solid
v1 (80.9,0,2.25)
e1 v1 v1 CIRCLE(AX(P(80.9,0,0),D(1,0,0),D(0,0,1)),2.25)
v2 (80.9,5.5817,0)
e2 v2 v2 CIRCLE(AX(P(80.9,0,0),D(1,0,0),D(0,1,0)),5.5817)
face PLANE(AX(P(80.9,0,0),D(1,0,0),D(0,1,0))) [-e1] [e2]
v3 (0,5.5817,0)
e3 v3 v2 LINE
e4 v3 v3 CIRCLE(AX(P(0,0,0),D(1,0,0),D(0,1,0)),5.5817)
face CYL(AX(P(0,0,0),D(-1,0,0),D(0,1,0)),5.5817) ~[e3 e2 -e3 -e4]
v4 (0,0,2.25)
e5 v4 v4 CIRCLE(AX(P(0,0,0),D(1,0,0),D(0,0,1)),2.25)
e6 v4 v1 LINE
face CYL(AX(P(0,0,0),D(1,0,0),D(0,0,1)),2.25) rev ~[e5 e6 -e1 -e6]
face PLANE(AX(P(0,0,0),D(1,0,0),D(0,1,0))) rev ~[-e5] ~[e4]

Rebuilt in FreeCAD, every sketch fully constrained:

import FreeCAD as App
import Part
import Sketcher

doc = App.newDocument("Part")
body = doc.addObject("PartDesign::Body", "Body")

# Sketch on YZ plane
sketch1 = body.newObject("Sketcher::SketchObject", "Sketch")
sketch1.AttachmentSupport = (doc.getObject("YZ_Plane"), [""])
sketch1.MapMode = "FlatFace"
sketch1.addGeometry(Part.Circle(App.Vector(0, 0, 0), App.Vector(0, 0, 1), 5.5817), False)
sketch1.addConstraint([
    Sketcher.Constraint("Coincident", 0, 3, -1, 1),
    Sketcher.Constraint("Diameter", 0, 11.1634),
])
pad1 = body.newObject("PartDesign::Pad", "Pad")
pad1.Profile = sketch1
pad1.Length = 80.9

# Sketch on YZ plane
sketch2 = body.newObject("Sketcher::SketchObject", "Sketch001")
sketch2.AttachmentSupport = (doc.getObject("YZ_Plane"), [""])
sketch2.MapMode = "FlatFace"
sketch2.addGeometry(Part.Circle(App.Vector(0, 0, 0), App.Vector(0, 0, 1), 2.25), False)
sketch2.addConstraint([
    Sketcher.Constraint("Coincident", 0, 3, -1, 1),
    Sketcher.Constraint("Diameter", 0, 4.5),
])
doc.recompute()
hole = body.newObject("PartDesign::Hole", "Hole")
hole.Profile = sketch2
hole.ThreadType = "None"
hole.Diameter = 4.5
hole.DepthType = "ThroughAll"
hole.Reversed = True

doc.recompute()
